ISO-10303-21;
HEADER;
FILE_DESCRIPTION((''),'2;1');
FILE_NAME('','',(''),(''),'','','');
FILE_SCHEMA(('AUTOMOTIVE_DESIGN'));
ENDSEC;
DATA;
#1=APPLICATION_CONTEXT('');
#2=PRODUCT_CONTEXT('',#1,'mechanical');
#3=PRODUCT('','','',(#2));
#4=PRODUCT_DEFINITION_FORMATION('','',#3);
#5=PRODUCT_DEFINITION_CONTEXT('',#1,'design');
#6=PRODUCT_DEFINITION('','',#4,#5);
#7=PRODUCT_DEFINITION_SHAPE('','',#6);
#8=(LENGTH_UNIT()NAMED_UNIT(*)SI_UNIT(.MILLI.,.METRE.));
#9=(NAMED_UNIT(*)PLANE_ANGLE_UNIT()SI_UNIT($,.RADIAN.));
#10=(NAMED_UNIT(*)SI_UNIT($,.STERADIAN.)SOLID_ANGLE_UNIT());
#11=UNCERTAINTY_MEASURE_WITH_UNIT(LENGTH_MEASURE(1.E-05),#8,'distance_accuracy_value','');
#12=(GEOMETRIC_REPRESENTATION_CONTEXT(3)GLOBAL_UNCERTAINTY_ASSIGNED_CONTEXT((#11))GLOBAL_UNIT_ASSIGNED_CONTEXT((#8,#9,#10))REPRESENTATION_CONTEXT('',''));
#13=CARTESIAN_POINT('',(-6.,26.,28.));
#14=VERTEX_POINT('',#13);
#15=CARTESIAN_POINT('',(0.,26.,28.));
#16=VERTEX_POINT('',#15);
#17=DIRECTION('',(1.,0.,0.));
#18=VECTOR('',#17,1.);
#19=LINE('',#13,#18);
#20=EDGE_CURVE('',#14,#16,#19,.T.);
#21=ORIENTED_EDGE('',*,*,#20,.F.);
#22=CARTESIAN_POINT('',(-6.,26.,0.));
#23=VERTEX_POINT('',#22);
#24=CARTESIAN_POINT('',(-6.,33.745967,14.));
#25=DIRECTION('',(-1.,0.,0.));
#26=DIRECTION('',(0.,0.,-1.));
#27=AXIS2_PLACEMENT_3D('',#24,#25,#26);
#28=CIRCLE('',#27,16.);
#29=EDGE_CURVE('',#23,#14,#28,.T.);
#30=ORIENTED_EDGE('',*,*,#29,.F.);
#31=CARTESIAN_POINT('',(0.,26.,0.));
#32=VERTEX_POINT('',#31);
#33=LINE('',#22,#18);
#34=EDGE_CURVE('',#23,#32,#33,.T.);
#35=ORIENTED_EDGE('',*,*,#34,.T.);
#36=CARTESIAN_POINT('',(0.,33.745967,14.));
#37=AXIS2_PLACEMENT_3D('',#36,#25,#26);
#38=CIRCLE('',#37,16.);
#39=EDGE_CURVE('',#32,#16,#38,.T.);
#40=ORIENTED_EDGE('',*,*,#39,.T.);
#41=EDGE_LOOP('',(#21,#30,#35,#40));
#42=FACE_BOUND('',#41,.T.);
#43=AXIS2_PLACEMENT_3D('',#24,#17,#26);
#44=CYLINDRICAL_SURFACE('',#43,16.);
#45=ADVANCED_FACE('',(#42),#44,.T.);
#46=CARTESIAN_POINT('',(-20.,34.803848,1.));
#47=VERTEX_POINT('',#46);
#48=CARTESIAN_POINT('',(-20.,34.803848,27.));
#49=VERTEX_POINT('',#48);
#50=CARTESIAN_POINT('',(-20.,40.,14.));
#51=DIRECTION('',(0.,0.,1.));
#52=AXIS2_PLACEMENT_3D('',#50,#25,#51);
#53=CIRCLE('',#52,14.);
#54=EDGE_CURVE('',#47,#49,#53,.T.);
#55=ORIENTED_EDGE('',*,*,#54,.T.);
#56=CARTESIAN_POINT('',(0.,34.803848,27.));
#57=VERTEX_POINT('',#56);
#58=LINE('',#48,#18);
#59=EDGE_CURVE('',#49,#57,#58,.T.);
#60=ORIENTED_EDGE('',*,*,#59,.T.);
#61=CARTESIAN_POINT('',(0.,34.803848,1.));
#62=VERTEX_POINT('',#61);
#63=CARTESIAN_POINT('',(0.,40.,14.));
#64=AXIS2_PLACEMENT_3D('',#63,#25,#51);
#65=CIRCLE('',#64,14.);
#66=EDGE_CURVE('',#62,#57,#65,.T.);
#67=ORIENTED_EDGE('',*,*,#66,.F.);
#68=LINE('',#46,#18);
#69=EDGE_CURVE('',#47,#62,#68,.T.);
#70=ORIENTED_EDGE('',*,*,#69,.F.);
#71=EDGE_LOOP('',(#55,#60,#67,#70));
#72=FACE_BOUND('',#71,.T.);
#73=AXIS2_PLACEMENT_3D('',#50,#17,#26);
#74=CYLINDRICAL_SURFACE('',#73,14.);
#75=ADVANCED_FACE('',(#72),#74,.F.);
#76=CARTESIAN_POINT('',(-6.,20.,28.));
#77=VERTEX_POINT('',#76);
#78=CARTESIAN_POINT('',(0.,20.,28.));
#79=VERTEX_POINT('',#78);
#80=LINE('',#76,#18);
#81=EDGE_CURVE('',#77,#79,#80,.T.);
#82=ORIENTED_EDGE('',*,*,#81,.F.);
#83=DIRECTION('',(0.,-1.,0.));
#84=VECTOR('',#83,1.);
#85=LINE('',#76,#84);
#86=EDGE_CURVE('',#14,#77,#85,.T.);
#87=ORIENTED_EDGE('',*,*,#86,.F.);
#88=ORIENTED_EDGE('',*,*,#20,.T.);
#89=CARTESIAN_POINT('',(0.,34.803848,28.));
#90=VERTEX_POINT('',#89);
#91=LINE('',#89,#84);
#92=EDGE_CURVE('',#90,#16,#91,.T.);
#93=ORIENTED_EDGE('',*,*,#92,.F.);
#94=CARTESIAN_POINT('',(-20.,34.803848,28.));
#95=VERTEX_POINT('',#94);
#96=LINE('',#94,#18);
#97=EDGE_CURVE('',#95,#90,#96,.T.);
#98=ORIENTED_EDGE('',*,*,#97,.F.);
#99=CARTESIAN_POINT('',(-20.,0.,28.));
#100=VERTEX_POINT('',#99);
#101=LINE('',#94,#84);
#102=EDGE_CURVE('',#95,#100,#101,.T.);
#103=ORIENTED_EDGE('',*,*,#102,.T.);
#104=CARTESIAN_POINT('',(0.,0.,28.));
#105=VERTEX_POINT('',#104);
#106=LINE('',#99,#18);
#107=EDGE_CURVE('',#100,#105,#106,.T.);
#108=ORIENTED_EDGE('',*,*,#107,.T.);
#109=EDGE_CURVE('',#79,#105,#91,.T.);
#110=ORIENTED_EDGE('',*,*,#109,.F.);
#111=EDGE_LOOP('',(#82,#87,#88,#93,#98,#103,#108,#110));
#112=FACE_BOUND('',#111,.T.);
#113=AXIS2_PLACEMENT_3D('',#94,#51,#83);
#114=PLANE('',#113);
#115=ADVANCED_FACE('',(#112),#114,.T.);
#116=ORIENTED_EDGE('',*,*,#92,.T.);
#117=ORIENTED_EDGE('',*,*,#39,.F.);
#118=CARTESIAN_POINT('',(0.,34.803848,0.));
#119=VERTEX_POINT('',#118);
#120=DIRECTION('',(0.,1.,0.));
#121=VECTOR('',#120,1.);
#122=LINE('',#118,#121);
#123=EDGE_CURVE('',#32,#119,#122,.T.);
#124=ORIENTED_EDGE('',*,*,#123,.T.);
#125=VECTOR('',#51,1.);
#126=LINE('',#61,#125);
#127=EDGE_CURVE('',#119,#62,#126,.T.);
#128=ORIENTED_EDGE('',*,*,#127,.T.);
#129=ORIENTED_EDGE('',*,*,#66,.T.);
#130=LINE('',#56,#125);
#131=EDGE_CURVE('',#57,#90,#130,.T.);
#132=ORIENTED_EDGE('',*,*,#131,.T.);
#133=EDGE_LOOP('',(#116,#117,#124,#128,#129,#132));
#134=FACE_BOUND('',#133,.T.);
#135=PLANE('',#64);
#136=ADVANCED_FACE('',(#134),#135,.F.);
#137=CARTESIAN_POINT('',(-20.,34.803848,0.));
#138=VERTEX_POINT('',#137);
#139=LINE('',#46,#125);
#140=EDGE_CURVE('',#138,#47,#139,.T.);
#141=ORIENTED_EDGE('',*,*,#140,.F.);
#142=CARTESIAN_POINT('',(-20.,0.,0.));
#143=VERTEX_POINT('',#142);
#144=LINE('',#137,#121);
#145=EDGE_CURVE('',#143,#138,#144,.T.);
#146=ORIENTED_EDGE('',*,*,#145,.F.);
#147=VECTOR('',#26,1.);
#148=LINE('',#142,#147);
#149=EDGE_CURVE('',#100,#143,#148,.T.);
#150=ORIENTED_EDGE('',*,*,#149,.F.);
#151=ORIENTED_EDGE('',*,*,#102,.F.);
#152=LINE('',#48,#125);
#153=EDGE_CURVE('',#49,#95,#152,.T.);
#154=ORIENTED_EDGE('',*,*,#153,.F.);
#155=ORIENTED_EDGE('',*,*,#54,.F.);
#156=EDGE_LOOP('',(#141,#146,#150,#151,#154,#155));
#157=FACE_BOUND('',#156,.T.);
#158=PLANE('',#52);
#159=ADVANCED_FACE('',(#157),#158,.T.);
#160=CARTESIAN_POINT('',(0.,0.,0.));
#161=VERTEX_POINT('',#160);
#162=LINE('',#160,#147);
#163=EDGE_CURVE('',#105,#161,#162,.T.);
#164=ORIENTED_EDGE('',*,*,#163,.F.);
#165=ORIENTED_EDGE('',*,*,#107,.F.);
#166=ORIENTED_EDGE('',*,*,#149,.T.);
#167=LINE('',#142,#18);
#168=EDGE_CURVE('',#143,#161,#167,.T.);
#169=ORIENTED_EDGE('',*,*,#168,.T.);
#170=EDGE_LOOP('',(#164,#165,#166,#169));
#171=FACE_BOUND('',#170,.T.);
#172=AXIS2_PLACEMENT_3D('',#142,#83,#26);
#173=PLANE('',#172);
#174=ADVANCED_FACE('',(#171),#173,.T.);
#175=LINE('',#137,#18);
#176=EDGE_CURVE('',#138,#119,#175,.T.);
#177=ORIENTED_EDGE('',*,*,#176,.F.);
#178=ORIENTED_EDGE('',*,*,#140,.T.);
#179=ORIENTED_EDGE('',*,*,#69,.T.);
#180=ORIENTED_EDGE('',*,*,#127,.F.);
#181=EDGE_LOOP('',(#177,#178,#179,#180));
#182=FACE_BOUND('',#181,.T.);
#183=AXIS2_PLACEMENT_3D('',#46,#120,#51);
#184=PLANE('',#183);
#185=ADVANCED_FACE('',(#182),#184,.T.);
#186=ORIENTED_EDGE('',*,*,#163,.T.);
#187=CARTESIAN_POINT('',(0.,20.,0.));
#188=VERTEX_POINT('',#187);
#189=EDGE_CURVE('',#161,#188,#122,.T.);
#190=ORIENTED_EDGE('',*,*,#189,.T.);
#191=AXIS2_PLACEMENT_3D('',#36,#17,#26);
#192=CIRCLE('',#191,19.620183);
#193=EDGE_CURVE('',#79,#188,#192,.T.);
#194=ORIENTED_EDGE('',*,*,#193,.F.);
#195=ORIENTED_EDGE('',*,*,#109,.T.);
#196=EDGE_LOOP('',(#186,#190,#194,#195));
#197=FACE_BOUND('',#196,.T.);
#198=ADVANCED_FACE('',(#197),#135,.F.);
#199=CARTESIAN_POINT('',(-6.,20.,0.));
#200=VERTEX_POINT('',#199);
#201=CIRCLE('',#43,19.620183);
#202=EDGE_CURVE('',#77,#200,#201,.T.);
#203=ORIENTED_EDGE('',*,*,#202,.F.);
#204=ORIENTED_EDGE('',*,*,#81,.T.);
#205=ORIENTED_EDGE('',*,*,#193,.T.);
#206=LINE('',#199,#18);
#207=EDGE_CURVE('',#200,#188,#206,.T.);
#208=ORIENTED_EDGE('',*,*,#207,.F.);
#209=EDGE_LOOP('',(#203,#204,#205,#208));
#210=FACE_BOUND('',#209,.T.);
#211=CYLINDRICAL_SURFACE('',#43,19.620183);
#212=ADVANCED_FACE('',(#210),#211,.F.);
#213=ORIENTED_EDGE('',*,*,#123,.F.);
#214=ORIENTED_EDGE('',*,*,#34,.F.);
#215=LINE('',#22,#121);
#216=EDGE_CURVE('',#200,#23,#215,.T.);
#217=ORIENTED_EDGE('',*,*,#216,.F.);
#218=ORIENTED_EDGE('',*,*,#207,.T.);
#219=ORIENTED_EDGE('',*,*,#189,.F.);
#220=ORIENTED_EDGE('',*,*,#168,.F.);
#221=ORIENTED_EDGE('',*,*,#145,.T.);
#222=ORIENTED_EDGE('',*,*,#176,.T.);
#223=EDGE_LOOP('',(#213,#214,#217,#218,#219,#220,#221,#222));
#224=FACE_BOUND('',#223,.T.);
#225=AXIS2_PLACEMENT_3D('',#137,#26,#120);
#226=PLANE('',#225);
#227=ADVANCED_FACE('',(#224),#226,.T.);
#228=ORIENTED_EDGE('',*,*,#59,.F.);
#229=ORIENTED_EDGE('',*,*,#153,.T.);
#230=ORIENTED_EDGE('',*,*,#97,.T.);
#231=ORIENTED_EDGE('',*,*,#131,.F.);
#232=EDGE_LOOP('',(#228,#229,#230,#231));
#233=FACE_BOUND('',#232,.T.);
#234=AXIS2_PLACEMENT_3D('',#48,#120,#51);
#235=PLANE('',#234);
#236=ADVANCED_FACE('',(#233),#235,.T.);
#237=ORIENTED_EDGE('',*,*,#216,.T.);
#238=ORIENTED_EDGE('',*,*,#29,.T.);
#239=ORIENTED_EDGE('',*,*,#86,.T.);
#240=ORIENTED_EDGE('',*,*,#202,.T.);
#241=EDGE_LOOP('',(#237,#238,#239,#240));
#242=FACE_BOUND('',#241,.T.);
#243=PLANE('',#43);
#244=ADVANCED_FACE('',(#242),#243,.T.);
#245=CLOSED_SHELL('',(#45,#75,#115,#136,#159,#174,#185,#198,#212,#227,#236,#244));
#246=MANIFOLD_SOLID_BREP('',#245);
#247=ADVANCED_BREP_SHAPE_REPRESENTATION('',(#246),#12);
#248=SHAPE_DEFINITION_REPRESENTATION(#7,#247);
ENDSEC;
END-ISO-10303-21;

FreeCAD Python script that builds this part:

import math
import FreeCAD as App
import Part
import Sketcher
Q = App.Units.Quantity

doc = App.newDocument("Part")
params = doc.addObject("Spreadsheet::Sheet", "Params")
for row, (alias, value) in enumerate([
    ("sketch1_radius", "14 mm"),
    ("sketch1_height", "28 mm"),
    ("sketch1_height2", "1 mm"),
    ("pad1_length", "20 mm"),
    ("sketch2_radius", "16 mm"),
    ("sketch2_width", "6 mm"),
    ("pocket1_length", "6 mm"),
], start=1):
    params.set(f"A{row}", alias)
    params.set(f"B{row}", "=" + value)
    params.setAlias(f"B{row}", alias)

body = doc.addObject("PartDesign::Body", "Body")

# Sketch on YZ plane
sketch1 = doc.addObject("Sketcher::SketchObject", "Sketch")
body.addObject(sketch1)
sketch1.AttachmentSupport = (doc.YZ_Plane, [""])
sketch1.MapMode = "FlatFace"
sketch1.addGeometry([
    Part.LineSegment(App.Vector(0, 28, 0), App.Vector(0, 0, 0)),  # 0
    Part.LineSegment(App.Vector(0, 0, 0), App.Vector(34.803848, 0, 0)),  # 1
    Part.LineSegment(App.Vector(34.803848, 0, 0), App.Vector(34.803848, 1, 0)),  # 2
    Part.ArcOfCircle(Part.Circle(App.Vector(40, 14, 0), App.Vector(0, 0, 1), 14), math.radians(111.786789), math.radians(248.213211)),  # 3
    Part.LineSegment(App.Vector(34.803848, 27, 0), App.Vector(34.803848, 28, 0)),  # 4
    Part.LineSegment(App.Vector(34.803848, 28, 0), App.Vector(0, 28, 0)),  # 5
], False)
sketch1.addConstraint([
    Sketcher.Constraint("Coincident", 0, 2, 1, 1),
    Sketcher.Constraint("Coincident", 1, 2, 2, 1),
    Sketcher.Constraint("Coincident", 2, 2, 3, 2),
    Sketcher.Constraint("Coincident", 3, 1, 4, 1),
    Sketcher.Constraint("Coincident", 4, 2, 5, 1),
    Sketcher.Constraint("Coincident", 5, 2, 0, 1),
    Sketcher.Constraint("Vertical", 0),
    Sketcher.Constraint("Horizontal", 1),
    Sketcher.Constraint("Vertical", 2),
    Sketcher.Constraint("Vertical", 4),
    Sketcher.Constraint("Horizontal", 5),
    Sketcher.Constraint("Coincident", 0, 2, -1, 1),
    Sketcher.Constraint("Vertical", 2, 2, 3, 1),
    Sketcher.Constraint("Equal", 2, 4),
    Sketcher.Constraint("Radius", 3, Q("14 mm")),
    Sketcher.Constraint("DistanceY", 0, 2, 0, 1, Q("28 mm")),
    Sketcher.Constraint("DistanceY", 2, 1, 2, 2, Q("1 mm")),
    Sketcher.Constraint("DistanceX", -1, 1, 3, 3, Q("40 mm")),
])
sketch1.setExpression("Constraints[14]", "Params.sketch1_radius")
sketch1.setExpression("Constraints[15]", "Params.sketch1_height")
sketch1.setExpression("Constraints[16]", "Params.sketch1_height2")
pad1 = doc.addObject("PartDesign::Pad", "Pad")
body.addObject(pad1)
pad1.Profile = sketch1
pad1.setExpression("Length", "Params.pad1_length")
pad1.Reversed = True

# Sketch on YZ plane
sketch2 = doc.addObject("Sketcher::SketchObject", "Sketch001")
body.addObject(sketch2)
sketch2.AttachmentSupport = (doc.YZ_Plane, [""])
sketch2.MapMode = "FlatFace"
sketch2.addGeometry([
    Part.LineSegment(App.Vector(26, 28, 0), App.Vector(20, 28, 0)),
    Part.ArcOfCircle(Part.Circle(App.Vector(33.745967, 14, 0), App.Vector(0, 0, 1), 19.620183), math.radians(134.475433), math.radians(225.524567)),
    Part.LineSegment(App.Vector(20, 0, 0), App.Vector(26, 0, 0)),
    Part.ArcOfCircle(Part.Circle(App.Vector(33.745967, 14, 0), App.Vector(0, 0, 1), 16), math.radians(118.955024), math.radians(241.044976)),
], False)
sketch2.addConstraint([
    Sketcher.Constraint("Coincident", 0, 2, 1, 1),
    Sketcher.Constraint("Coincident", 1, 2, 2, 1),
    Sketcher.Constraint("Coincident", 2, 2, 3, 2),
    Sketcher.Constraint("Coincident", 3, 1, 0, 1),
    Sketcher.Constraint("Horizontal", 0),
    Sketcher.Constraint("Horizontal", 2),
    Sketcher.Constraint("Coincident", 3, 3, 1, 3),
    Sketcher.Constraint("PointOnObject", 1, 2, -1),
    Sketcher.Constraint("Vertical", 0, 2, 1, 2),
    Sketcher.Constraint("Radius", 3, Q("16 mm")),
    Sketcher.Constraint("DistanceX", 0, 2, 0, 1, Q("6 mm")),
    Sketcher.Constraint("DistanceY", -1, 1, 1, 3, Q("14 mm")),
    Sketcher.Constraint("DistanceX", -1, 1, 0, 2, Q("20 mm")),
])
sketch2.setExpression("Constraints[9]", "Params.sketch2_radius")
sketch2.setExpression("Constraints[10]", "Params.sketch2_width")
pocket1 = doc.addObject("PartDesign::Pocket", "Pocket")
body.addObject(pocket1)
pocket1.Profile = sketch2
pocket1.setExpression("Length", "Params.pocket1_length")

doc.recompute()
